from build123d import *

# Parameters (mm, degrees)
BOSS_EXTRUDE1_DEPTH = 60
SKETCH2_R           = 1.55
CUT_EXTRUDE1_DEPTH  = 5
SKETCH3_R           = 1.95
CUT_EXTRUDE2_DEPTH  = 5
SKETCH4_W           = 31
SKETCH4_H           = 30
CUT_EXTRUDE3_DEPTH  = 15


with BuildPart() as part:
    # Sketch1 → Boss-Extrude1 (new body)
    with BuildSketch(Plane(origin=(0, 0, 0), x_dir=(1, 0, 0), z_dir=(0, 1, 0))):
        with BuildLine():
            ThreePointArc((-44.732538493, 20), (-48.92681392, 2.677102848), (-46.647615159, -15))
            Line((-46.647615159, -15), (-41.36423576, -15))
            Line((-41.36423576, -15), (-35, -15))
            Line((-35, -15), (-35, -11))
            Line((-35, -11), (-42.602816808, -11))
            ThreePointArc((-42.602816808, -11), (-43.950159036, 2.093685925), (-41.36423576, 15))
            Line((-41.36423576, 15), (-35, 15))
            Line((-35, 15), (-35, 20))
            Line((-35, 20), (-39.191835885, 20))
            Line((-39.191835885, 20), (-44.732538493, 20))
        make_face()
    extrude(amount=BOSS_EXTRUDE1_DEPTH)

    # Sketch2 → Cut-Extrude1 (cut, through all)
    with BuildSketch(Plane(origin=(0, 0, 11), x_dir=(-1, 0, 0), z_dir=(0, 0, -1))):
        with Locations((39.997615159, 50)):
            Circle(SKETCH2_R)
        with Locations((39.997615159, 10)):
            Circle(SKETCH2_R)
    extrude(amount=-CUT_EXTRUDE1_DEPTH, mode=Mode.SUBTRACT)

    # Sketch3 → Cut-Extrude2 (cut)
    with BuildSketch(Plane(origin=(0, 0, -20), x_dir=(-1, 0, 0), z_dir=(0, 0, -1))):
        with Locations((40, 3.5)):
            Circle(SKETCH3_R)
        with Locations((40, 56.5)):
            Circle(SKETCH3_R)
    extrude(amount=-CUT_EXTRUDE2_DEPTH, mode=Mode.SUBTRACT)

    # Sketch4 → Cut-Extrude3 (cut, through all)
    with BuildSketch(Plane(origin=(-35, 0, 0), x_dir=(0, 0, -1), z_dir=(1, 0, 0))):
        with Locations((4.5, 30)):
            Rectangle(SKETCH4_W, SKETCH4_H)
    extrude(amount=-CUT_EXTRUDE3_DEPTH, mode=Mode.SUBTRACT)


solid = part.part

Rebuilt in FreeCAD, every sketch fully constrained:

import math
import FreeCAD as App
import Part
import Sketcher
from FreeCAD import Vector
Q = App.Units.Quantity


def add_polygon(sketch, points):
    """Adds a closed chain of lines whose ends are joined by coincident constraints."""
    first, n = sketch.GeometryCount, len(points)
    for a, b in zip(points, points[1:] + points[:1]):
        sketch.addGeometry(Part.LineSegment(App.Vector(*a, 0), App.Vector(*b, 0)), False)
    for i in range(n):
        sketch.addConstraint(Sketcher.Constraint("Coincident", first + i, 2, first + (i + 1) % n, 1))

doc = App.newDocument("Part")
body = doc.addObject("PartDesign::Body", "Body")

sketch1 = doc.addObject("Sketcher::SketchObject", "Sketch")
body.addObject(sketch1)
sketch1.AttachmentSupport = (doc.XZ_Plane, [""])
sketch1.MapMode = "FlatFace"
sketch1.addGeometry(Part.ArcOfCircle(Part.Circle(Vector(0, 0, 0), Vector(0, 0, 1), 49), math.radians(162.174294), math.radians(204.089506)), False)
sketch1.addGeometry(Part.LineSegment(Vector(-46.647615, 15, 0), Vector(-35, 15, 0)), False)
sketch1.addGeometry(Part.LineSegment(Vector(-35, 15, 0), Vector(-35, 11, 0)), False)
sketch1.addGeometry(Part.LineSegment(Vector(-35, 11, 0), Vector(-42.602817, 11, 0)), False)
sketch1.addGeometry(Part.ArcOfCircle(Part.Circle(Vector(0, 0, 0), Vector(0, 0, 1), 44), math.radians(165.522488), math.radians(199.93227)), False)
sketch1.addGeometry(Part.LineSegment(Vector(-41.364236, -15, 0), Vector(-35, -15, 0)), False)
sketch1.addGeometry(Part.LineSegment(Vector(-35, -15, 0), Vector(-35, -20, 0)), False)
sketch1.addGeometry(Part.LineSegment(Vector(-35, -20, 0), Vector(-44.732538, -20, 0)), False)
sketch1.addConstraint(Sketcher.Constraint("Coincident", 0, 1, 1, 1))
sketch1.addConstraint(Sketcher.Constraint("Coincident", 1, 2, 2, 1))
sketch1.addConstraint(Sketcher.Constraint("Coincident", 2, 2, 3, 1))
sketch1.addConstraint(Sketcher.Constraint("Coincident", 3, 2, 4, 1))
sketch1.addConstraint(Sketcher.Constraint("Coincident", 4, 2, 5, 1))
sketch1.addConstraint(Sketcher.Constraint("Coincident", 5, 2, 6, 1))
sketch1.addConstraint(Sketcher.Constraint("Coincident", 6, 2, 7, 1))
sketch1.addConstraint(Sketcher.Constraint("Coincident", 7, 2, 0, 2))
sketch1.addConstraint(Sketcher.Constraint("Horizontal", 1))
sketch1.addConstraint(Sketcher.Constraint("Vertical", 2))
sketch1.addConstraint(Sketcher.Constraint("Horizontal", 3))
sketch1.addConstraint(Sketcher.Constraint("Horizontal", 5))
sketch1.addConstraint(Sketcher.Constraint("Vertical", 6))
sketch1.addConstraint(Sketcher.Constraint("Horizontal", 7))
sketch1.addConstraint(Sketcher.Constraint("Coincident", 0, 3, -1, 1))
sketch1.addConstraint(Sketcher.Constraint("Coincident", 4, 3, -1, 1))
sketch1.addConstraint(Sketcher.Constraint("Symmetric", 1, 2, 5, 2, -1))
sketch1.addConstraint(Sketcher.Constraint("Radius", 0, Q("49 mm")))
sketch1.addConstraint(Sketcher.Constraint("Radius", 4, Q("44 mm")))
sketch1.addConstraint(Sketcher.Constraint("DistanceY", 2, 2, 2, 1, Q("4 mm")))
sketch1.addConstraint(Sketcher.Constraint("DistanceY", 6, 2, 6, 1, Q("5 mm")))
sketch1.addConstraint(Sketcher.Constraint("DistanceY", -1, 1, 0, 1, Q("15 mm")))
sketch1.addConstraint(Sketcher.Constraint("DistanceX", 1, 2, -1, 1, Q("35 mm")))
pad1 = doc.addObject("PartDesign::Pad", "Pad")
body.addObject(pad1)
pad1.Profile = sketch1
pad1.Length = 60
pad1.Reversed = True

sketch2 = doc.addObject("Sketcher::SketchObject", "Sketch001")
body.addObject(sketch2)
sketch2.AttachmentSupport = (doc.XY_Plane, [""])
sketch2.MapMode = "FlatFace"
sketch2.AttachmentOffset = App.Placement(Vector(0, 0, 11), App.Rotation())
sketch2.addGeometry(Part.Circle(Vector(-39.997615, 50, 0), Vector(0, 0, 1), 1.55), False)
sketch2.addGeometry(Part.Circle(Vector(-39.997615, 10, 0), Vector(0, 0, 1), 1.55), False)
sketch2.addConstraint(Sketcher.Constraint("Equal", 0, 1))
sketch2.addConstraint(Sketcher.Constraint("Vertical", 0, 3, 1, 3))
sketch2.addConstraint(Sketcher.Constraint("Diameter", 0, Q("3.1 mm")))
sketch2.addConstraint(Sketcher.Constraint("DistanceY", -1, 1, 0, 3, Q("50 mm")))
sketch2.addConstraint(Sketcher.Constraint("DistanceY", -1, 1, 1, 3, Q("10 mm")))
sketch2.addConstraint(Sketcher.Constraint("DistanceX", 0, 3, -1, 1, Q("39.997615 mm")))
pocket1 = doc.addObject("PartDesign::Pocket", "Pocket")
body.addObject(pocket1)
pocket1.Profile = sketch2
pocket1.Type = "ThroughAll"
pocket1.Reversed = True

sketch3 = doc.addObject("Sketcher::SketchObject", "Sketch002")
body.addObject(sketch3)
sketch3.AttachmentSupport = (doc.XY_Plane, [""])
sketch3.MapMode = "FlatFace"
sketch3.AttachmentOffset = App.Placement(Vector(0, 0, -20), App.Rotation())
sketch3.addGeometry(Part.Circle(Vector(-40, 3.5, 0), Vector(0, 0, 1), 1.95), False)
sketch3.addGeometry(Part.Circle(Vector(-40, 56.5, 0), Vector(0, 0, 1), 1.95), False)
sketch3.addConstraint(Sketcher.Constraint("Equal", 0, 1))
sketch3.addConstraint(Sketcher.Constraint("Vertical", 0, 3, 1, 3))
sketch3.addConstraint(Sketcher.Constraint("Diameter", 0, Q("3.9 mm")))
sketch3.addConstraint(Sketcher.Constraint("DistanceX", 0, 3, -1, 1, Q("40 mm")))
sketch3.addConstraint(Sketcher.Constraint("DistanceY", 0, 3, 1, 3, Q("53 mm")))
sketch3.addConstraint(Sketcher.Constraint("DistanceY", -1, 1, 0, 3, Q("3.5 mm")))
pocket2 = doc.addObject("PartDesign::Pocket", "Pocket001")
body.addObject(pocket2)
pocket2.Profile = sketch3
pocket2.Length = 5
pocket2.Reversed = True

sketch4 = doc.addObject("Sketcher::SketchObject", "Sketch003")
body.addObject(sketch4)
sketch4.AttachmentSupport = (doc.YZ_Plane, [""])
sketch4.MapMode = "FlatFace"
sketch4.AttachmentOffset = App.Placement(Vector(0, 0, -35), App.Rotation())
add_polygon(sketch4, [(45, 11), (15, 11), (15, -20), (45, -20)])
sketch4.addConstraint(Sketcher.Constraint("Horizontal", 0))
sketch4.addConstraint(Sketcher.Constraint("Vertical", 1))
sketch4.addConstraint(Sketcher.Constraint("Horizontal", 2))
sketch4.addConstraint(Sketcher.Constraint("Vertical", 3))
sketch4.addConstraint(Sketcher.Constraint("DistanceX", 0, 2, 0, 1, Q("30 mm")))
sketch4.addConstraint(Sketcher.Constraint("DistanceY", 1, 2, 1, 1, Q("31 mm")))
sketch4.addConstraint(Sketcher.Constraint("DistanceX", -1, 1, 0, 2, Q("15 mm")))
sketch4.addConstraint(Sketcher.Constraint("DistanceY", -1, 1, 0, 2, Q("11 mm")))
pocket3 = doc.addObject("PartDesign::Pocket", "Pocket002")
body.addObject(pocket3)
pocket3.Profile = sketch4
pocket3.Type = "ThroughAll"

doc.recompute()
